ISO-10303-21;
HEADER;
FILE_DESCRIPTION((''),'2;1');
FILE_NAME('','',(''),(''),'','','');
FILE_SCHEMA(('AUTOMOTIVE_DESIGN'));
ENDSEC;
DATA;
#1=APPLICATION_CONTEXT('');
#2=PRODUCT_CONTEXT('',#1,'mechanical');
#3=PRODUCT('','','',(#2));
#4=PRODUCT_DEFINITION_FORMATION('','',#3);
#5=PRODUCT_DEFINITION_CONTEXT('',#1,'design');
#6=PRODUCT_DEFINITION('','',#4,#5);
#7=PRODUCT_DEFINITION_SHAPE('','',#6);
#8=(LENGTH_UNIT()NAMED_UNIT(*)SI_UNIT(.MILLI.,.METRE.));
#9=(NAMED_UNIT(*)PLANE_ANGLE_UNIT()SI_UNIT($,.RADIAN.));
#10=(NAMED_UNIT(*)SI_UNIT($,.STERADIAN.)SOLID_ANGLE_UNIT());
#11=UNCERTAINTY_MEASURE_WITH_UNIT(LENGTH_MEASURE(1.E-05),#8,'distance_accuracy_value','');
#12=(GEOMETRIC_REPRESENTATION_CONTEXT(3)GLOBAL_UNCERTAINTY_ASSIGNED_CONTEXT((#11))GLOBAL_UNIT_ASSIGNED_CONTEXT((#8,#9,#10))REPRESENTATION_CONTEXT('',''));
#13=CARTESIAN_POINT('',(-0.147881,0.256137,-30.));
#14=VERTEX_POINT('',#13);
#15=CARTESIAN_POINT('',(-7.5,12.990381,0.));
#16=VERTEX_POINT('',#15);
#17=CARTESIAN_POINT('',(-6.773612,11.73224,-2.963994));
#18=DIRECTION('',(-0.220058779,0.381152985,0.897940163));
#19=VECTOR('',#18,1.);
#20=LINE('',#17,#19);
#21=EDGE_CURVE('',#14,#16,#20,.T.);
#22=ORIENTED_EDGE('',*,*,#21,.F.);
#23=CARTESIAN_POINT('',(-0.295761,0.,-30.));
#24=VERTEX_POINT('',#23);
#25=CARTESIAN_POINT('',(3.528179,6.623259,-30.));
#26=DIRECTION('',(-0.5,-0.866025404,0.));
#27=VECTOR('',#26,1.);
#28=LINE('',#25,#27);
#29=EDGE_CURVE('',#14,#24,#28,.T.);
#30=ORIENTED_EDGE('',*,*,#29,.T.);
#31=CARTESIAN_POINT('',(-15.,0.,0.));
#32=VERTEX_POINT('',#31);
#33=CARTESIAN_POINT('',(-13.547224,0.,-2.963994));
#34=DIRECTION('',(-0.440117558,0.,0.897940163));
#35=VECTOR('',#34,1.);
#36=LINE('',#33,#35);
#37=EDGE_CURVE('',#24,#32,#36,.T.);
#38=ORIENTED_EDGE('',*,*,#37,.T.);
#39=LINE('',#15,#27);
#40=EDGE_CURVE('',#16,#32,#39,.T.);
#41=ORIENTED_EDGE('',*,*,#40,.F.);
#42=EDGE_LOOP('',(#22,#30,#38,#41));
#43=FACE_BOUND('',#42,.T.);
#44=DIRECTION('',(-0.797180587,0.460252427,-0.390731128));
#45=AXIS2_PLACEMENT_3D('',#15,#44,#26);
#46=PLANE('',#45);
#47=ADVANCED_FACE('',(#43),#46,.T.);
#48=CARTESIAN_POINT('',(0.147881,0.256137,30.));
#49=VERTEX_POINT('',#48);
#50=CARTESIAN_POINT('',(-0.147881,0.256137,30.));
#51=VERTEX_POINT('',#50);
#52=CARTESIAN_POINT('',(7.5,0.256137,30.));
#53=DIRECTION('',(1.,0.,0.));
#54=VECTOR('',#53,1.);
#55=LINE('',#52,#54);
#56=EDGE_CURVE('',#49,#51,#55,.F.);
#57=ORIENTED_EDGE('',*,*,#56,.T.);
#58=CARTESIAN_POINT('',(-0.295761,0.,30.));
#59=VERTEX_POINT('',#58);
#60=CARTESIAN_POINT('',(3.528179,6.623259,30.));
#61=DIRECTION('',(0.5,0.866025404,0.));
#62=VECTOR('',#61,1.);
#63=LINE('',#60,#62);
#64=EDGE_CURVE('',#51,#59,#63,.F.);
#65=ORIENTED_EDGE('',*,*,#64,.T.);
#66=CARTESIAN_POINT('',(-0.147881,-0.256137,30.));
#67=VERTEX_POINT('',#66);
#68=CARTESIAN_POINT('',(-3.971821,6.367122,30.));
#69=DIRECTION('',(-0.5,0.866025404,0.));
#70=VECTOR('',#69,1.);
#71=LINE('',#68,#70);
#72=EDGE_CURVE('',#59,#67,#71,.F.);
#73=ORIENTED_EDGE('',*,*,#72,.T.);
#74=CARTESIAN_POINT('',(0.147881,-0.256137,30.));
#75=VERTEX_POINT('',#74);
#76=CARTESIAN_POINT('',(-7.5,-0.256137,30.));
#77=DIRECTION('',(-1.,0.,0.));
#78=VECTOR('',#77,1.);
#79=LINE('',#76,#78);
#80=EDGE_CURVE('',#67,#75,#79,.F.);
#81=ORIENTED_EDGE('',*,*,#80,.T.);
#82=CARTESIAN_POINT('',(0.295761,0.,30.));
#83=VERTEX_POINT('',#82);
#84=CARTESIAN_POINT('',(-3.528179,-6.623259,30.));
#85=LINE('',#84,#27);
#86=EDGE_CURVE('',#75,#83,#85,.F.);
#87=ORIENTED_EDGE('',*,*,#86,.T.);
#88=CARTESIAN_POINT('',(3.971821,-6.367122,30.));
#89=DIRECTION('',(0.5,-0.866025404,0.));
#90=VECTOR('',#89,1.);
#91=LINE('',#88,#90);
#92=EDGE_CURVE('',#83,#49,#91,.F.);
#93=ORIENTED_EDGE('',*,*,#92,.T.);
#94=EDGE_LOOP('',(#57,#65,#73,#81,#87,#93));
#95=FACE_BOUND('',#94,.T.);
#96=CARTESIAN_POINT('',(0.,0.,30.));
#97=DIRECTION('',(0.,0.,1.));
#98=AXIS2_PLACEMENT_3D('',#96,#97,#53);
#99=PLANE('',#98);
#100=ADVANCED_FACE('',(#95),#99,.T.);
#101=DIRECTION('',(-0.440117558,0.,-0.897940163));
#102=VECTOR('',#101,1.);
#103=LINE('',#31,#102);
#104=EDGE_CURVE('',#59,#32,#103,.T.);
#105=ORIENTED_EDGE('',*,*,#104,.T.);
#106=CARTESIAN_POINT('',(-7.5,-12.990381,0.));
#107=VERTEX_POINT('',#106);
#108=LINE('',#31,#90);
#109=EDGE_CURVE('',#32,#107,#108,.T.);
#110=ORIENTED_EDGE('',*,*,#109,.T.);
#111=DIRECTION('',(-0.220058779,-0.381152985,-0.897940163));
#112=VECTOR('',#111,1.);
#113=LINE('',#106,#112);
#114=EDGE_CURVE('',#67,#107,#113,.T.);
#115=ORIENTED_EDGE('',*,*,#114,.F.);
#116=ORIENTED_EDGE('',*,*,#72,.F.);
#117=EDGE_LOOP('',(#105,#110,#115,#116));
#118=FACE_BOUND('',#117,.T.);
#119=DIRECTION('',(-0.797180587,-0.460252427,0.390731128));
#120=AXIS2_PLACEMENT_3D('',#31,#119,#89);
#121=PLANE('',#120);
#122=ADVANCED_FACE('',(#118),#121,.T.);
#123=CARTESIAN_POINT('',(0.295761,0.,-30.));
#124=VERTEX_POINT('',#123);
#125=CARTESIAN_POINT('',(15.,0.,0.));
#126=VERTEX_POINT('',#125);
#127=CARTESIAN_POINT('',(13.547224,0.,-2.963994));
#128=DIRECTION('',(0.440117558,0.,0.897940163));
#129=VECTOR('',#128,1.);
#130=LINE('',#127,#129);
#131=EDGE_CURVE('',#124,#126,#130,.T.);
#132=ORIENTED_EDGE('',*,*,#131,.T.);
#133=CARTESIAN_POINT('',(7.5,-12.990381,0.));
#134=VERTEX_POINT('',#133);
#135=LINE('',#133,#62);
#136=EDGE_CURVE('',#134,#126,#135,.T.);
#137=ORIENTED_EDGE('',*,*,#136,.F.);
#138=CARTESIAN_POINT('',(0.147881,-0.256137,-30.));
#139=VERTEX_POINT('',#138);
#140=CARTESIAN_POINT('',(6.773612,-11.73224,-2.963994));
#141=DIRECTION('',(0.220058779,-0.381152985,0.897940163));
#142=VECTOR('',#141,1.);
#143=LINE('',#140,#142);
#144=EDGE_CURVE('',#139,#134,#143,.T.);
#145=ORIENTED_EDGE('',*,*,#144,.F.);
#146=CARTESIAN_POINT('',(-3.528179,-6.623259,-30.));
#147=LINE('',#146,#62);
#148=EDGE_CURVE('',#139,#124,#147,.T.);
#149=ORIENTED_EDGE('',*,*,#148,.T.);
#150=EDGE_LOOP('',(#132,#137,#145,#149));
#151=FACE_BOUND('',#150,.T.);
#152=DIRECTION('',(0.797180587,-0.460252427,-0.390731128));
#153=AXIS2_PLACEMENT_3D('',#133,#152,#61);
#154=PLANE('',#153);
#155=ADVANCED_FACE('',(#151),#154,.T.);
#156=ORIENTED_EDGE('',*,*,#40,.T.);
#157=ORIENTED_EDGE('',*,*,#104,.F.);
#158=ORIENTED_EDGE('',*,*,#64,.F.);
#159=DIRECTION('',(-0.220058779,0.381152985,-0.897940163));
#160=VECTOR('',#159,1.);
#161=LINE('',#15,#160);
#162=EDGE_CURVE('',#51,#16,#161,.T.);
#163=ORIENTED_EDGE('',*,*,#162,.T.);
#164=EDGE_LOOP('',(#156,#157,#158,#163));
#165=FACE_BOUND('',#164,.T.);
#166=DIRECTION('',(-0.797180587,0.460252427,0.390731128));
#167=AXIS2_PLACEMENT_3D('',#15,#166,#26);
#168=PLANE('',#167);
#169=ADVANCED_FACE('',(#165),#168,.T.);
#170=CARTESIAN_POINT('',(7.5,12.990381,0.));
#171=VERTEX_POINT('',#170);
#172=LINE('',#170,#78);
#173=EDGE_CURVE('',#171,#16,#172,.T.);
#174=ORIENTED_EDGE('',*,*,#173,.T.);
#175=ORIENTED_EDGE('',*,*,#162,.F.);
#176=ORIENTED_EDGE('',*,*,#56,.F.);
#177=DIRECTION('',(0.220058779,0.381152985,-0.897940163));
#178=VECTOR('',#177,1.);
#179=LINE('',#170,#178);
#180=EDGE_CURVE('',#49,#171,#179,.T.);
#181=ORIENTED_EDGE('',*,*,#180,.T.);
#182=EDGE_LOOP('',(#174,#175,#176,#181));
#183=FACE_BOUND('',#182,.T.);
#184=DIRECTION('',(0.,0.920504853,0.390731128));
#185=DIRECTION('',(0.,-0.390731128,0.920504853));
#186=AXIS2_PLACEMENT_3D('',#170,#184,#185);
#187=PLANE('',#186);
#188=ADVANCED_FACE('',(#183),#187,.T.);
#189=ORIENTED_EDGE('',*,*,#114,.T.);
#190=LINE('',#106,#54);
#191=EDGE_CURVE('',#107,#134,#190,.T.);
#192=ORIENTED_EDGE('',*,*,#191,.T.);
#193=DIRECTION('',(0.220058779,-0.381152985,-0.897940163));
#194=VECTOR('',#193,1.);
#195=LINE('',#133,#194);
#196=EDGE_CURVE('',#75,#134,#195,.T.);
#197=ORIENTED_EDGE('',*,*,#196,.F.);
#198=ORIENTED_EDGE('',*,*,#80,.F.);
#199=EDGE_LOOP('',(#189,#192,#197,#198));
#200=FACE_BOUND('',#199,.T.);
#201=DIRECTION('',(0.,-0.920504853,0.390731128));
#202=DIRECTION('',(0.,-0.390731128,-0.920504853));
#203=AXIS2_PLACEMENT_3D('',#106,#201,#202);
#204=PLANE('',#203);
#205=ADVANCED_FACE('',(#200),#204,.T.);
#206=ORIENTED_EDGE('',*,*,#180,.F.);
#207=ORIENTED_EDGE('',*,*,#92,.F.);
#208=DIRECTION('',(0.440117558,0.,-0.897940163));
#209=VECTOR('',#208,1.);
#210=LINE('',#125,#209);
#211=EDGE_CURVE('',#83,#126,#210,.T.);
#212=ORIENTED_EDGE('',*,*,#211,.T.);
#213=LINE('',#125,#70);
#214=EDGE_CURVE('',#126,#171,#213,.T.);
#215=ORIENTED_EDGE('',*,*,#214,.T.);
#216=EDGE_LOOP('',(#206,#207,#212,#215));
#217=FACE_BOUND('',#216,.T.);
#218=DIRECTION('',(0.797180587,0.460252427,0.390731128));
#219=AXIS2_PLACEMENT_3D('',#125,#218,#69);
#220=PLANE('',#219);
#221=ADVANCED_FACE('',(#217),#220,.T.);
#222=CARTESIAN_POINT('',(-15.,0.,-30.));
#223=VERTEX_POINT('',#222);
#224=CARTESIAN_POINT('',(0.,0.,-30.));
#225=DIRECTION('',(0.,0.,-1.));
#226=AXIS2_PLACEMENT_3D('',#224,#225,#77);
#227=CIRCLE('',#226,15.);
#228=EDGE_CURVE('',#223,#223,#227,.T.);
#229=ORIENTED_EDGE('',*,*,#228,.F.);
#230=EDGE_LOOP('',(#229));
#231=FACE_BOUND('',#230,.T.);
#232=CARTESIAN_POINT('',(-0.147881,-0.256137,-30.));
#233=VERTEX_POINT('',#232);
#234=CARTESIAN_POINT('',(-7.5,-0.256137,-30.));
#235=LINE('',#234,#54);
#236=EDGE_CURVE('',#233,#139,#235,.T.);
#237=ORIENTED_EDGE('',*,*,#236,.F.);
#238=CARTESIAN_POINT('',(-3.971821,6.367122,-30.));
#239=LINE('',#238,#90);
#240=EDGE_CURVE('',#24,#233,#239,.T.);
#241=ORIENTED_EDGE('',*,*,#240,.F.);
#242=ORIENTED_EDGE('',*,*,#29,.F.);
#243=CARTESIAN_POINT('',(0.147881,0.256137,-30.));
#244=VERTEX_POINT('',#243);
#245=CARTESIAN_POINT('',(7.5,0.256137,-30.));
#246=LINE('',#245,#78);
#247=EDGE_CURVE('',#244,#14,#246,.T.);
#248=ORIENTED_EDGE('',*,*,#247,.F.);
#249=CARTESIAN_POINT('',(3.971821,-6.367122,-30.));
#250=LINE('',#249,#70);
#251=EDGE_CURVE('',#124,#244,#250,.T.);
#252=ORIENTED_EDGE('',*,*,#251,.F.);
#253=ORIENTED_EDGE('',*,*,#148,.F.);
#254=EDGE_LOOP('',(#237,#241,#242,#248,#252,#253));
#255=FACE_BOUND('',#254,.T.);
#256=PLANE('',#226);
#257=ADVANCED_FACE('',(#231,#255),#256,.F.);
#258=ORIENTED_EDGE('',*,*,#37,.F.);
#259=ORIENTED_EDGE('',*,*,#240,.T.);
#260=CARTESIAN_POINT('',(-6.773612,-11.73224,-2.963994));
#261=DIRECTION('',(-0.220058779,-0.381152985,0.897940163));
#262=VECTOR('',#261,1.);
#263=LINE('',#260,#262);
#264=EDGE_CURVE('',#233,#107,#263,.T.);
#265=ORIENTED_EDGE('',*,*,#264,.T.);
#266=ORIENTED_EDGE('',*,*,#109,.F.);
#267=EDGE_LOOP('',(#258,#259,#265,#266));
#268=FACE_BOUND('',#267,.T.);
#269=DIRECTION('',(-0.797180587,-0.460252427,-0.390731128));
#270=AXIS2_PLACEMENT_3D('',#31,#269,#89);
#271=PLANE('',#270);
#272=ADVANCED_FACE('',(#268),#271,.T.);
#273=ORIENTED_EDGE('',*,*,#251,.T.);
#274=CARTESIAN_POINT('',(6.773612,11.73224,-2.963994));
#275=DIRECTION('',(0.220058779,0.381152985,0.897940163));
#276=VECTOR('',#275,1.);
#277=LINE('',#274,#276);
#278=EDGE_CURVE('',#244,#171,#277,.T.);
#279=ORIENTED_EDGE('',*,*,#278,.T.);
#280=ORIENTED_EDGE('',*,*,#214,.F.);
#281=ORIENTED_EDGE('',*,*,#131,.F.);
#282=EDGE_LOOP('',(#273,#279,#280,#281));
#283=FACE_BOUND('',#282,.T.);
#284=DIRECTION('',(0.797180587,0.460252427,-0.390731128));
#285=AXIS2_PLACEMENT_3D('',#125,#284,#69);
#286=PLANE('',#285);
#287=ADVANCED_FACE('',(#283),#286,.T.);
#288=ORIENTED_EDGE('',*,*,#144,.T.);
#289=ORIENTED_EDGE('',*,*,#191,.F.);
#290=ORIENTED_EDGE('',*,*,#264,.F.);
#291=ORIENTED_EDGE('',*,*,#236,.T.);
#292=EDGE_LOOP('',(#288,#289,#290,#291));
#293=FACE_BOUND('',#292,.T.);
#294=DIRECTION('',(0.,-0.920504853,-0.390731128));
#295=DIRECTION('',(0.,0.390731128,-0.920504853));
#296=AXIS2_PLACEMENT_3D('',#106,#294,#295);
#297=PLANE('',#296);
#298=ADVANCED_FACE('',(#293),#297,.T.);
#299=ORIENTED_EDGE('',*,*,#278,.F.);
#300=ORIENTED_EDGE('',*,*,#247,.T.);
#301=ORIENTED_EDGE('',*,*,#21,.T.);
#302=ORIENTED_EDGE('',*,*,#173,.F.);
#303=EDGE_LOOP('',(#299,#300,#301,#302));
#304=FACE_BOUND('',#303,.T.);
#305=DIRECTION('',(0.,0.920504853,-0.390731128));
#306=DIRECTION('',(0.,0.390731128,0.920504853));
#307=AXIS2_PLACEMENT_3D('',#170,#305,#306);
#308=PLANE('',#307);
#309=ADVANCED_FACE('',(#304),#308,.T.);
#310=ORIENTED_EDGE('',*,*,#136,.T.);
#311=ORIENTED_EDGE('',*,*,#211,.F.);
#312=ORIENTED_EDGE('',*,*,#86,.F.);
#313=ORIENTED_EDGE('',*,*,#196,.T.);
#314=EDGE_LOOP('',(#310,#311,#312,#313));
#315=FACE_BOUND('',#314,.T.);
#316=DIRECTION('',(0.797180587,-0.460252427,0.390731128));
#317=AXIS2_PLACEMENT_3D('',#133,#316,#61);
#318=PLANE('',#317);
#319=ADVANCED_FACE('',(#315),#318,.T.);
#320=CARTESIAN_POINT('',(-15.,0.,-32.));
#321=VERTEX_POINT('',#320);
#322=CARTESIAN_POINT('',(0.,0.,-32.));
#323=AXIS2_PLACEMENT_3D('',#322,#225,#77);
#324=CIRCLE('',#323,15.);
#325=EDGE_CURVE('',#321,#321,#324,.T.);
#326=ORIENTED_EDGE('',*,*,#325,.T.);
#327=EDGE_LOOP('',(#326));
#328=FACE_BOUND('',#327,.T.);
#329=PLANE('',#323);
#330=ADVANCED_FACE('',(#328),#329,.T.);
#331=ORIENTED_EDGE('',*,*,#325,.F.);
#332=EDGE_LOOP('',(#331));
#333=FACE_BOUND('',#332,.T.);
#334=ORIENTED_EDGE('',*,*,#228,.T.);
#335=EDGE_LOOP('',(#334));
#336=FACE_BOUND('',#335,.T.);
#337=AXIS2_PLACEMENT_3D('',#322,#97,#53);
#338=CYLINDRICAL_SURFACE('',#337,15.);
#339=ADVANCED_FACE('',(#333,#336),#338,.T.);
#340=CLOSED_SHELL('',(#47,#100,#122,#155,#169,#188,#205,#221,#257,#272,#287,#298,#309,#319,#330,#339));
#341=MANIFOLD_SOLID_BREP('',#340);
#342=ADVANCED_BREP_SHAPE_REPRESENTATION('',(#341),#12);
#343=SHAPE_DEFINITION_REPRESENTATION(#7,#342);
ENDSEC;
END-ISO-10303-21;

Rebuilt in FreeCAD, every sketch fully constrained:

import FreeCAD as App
import Part
import Sketcher

V = App.Vector
Q = App.Units.Quantity


def add_polygon(sketch, points):
    """Adds a closed chain of lines whose ends are joined by coincident constraints."""
    first, n = sketch.GeometryCount, len(points)
    for a, b in zip(points, points[1:] + points[:1]):
        sketch.addGeometry(Part.LineSegment(App.Vector(*a, 0), App.Vector(*b, 0)), False)
    for i in range(n):
        sketch.addConstraint(Sketcher.Constraint("Coincident", first + i, 2, first + (i + 1) % n, 1))

doc = App.newDocument("Part")
body = doc.addObject("PartDesign::Body", "Body")

# Sketch on XY plane
sketch1 = body.newObject("Sketcher::SketchObject", "Sketch")
sketch1.AttachmentSupport = (doc.getObject("XY_Plane"), [""])
sketch1.MapMode = "FlatFace"
add_polygon(sketch1, [(15, 0), (7.5, 12.990381), (-7.5, 12.990381), (-15, 0), (-7.5, -12.990381), (7.5, -12.990381)])  # lines 0-5
sketch1.addConstraint([
    Sketcher.Constraint("Horizontal", 1),
    Sketcher.Constraint("Horizontal", 4),
    Sketcher.Constraint("Symmetric", 0, 2, 3, 2, -1, 1),
    Sketcher.Constraint("Symmetric", 2, 2, 5, 2, -1, 1),
    Sketcher.Constraint("PointOnObject", 2, 2, -1),
    Sketcher.Constraint("Parallel", 2, 5),
    Sketcher.Constraint("Vertical", 1, 2, 3, 2),
    Sketcher.Constraint("DistanceX", 1, 2, 1, 1, 15.0),
    Sketcher.Constraint("Angle", 0, Q("120 deg")),
    Sketcher.Constraint("Distance", 0, 15.0),
])
pad1 = body.newObject("PartDesign::Pad", "Pad")
pad1.Profile = sketch1
pad1.Length = 30
pad1.TaperAngle = -23
doc.recompute()

mirrored = body.newObject("PartDesign::Mirrored", "Mirrored")
mirrored.Originals = [pad1]
mirrored.MirrorPlane = (doc.getObject("XY_Plane"), [""])
body.Tip = mirrored

# Sketch on XY plane
sketch2 = body.newObject("Sketcher::SketchObject", "Sketch001")
sketch2.AttachmentSupport = (doc.getObject("XY_Plane"), [""])
sketch2.MapMode = "FlatFace"
sketch2.AttachmentOffset = App.Placement(V(0, 0, -30), App.Rotation())
sketch2.addGeometry(Part.Circle(V(0, 0, 0), V(0, 0, 1), 15), False)
sketch2.addConstraint([
    Sketcher.Constraint("Coincident", 0, 3, -1, 1),
    Sketcher.Constraint("Diameter", 0, 30.0),
])
pad2 = body.newObject("PartDesign::Pad", "Pad001")
pad2.Profile = sketch2
pad2.Length = 2
pad2.Reversed = True

doc.recompute()
